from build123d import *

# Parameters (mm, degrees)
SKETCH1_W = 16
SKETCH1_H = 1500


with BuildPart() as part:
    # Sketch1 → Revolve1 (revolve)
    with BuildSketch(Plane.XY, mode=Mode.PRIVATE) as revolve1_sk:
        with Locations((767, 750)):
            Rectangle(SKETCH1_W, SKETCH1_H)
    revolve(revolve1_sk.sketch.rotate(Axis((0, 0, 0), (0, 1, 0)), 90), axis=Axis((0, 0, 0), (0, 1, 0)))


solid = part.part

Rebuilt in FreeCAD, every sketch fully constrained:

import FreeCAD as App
import Part
import Sketcher

V = App.Vector


def add_polygon(sketch, points):
    """Adds a closed chain of lines whose ends are joined by coincident constraints."""
    first, n = sketch.GeometryCount, len(points)
    for a, b in zip(points, points[1:] + points[:1]):
        sketch.addGeometry(Part.LineSegment(App.Vector(*a, 0), App.Vector(*b, 0)), False)
    for i in range(n):
        sketch.addConstraint(Sketcher.Constraint("Coincident", first + i, 2, first + (i + 1) % n, 1))

doc = App.newDocument("Part")
body = doc.addObject("PartDesign::Body", "Body")

# Sketch on XY plane
sketch1 = body.newObject("Sketcher::SketchObject", "Sketch")
sketch1.AttachmentSupport = (doc.getObject("XY_Plane"), [""])
sketch1.MapMode = "FlatFace"
add_polygon(sketch1, [(759, 1500), (759, 0), (775, 0), (775, 1500)])  # lines 0-3
sketch1.addConstraint(Sketcher.Constraint("Vertical", 0))
sketch1.addConstraint(Sketcher.Constraint("Horizontal", 1))
sketch1.addConstraint(Sketcher.Constraint("Vertical", 2))
sketch1.addConstraint(Sketcher.Constraint("Horizontal", 3))
sketch1.addConstraint(Sketcher.Constraint("PointOnObject", 0, 2, -1))
sketch1.addConstraint(Sketcher.Constraint("DistanceX", 1, 1, 1, 2, 16.0))
sketch1.addConstraint(Sketcher.Constraint("DistanceY", 0, 2, 0, 1, 1500.0))
sketch1.addConstraint(Sketcher.Constraint("DistanceX", -1, 1, 0, 2, 759.0))
revolution = body.newObject("PartDesign::Revolution", "Revolution")
revolution.Profile = sketch1
revolution.ReferenceAxis = (sketch1, ["V_Axis"])
revolution.Angle = 360

doc.recompute()
